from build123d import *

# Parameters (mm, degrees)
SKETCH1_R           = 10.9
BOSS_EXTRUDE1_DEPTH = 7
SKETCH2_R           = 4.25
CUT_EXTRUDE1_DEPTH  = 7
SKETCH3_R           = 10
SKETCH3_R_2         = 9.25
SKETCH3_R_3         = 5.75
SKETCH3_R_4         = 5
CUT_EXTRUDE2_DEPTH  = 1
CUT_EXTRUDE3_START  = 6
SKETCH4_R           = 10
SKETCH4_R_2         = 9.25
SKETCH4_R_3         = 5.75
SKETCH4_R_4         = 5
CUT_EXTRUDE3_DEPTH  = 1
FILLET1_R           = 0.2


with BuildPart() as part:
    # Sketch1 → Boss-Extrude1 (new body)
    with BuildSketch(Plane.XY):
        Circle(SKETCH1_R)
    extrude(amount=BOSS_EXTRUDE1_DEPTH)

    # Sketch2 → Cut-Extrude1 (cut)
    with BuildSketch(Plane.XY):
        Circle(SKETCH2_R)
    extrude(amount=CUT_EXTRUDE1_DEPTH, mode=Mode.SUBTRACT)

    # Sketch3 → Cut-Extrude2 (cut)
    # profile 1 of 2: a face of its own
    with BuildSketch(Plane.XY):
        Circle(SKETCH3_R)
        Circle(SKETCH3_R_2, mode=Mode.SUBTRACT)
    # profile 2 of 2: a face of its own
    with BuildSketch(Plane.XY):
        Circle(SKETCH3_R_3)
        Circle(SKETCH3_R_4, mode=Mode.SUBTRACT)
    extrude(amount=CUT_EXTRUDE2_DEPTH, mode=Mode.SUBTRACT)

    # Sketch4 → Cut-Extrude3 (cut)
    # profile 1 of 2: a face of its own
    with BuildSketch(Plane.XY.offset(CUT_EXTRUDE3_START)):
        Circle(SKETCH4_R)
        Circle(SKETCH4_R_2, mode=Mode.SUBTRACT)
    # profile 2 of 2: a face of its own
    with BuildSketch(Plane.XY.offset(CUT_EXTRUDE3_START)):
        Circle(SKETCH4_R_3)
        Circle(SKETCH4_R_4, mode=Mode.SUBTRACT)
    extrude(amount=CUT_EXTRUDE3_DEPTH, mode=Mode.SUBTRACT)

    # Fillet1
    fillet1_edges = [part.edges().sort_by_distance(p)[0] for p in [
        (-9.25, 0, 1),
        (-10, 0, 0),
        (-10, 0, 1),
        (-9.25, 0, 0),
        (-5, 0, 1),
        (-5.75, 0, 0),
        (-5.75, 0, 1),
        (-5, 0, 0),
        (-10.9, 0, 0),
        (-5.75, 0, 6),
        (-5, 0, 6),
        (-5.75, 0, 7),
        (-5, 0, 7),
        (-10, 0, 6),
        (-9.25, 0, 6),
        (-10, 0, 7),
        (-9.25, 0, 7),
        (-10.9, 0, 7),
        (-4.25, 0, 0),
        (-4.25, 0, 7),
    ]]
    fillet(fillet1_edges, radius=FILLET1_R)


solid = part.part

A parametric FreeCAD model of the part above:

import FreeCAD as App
import Part
import Sketcher


def edges_at(feature, points):
    """Names of the edges that pass closest to the given points."""
    edges = feature.Shape.Edges
    near = lambda p: min(range(len(edges)), key=lambda i: edges[i].distToShape(Part.Vertex(*p))[0])
    return sorted({f"Edge{near(p) + 1}" for p in points})

doc = App.newDocument("Part")
params = doc.addObject("Spreadsheet::Sheet", "Params")
for row, (alias, value) in enumerate([
    ("sketch1_diameter", "21.8 mm"),
    ("pad1_length", "7 mm"),
    ("sketch2_diameter", "8.5 mm"),
    ("pocket1_length", "7 mm"),
    ("sketch3_diameter", "20 mm"),
    ("sketch3_diameter2", "10 mm"),
    ("sketch3_diameter3", "18.5 mm"),
    ("sketch3_diameter4", "11.5 mm"),
    ("pocket2_length", "1 mm"),
    ("sketch4_diameter", "20 mm"),
    ("sketch4_diameter2", "10 mm"),
    ("sketch4_diameter3", "18.5 mm"),
    ("sketch4_diameter4", "11.5 mm"),
    ("pocket3_length", "1 mm"),
    ("fillet_radius", "0.2 mm"),
], start=1):
    params.set(f"A{row}", alias)
    params.set(f"B{row}", "=" + value)
    params.setAlias(f"B{row}", alias)

body = doc.addObject("PartDesign::Body", "Body")

# Sketch on XY plane
sketch1 = body.newObject("Sketcher::SketchObject", "Sketch")
sketch1.AttachmentSupport = (doc.getObject("XY_Plane"), [""])
sketch1.MapMode = "FlatFace"
sketch1.addGeometry(Part.Circle(App.Vector(0, 0, 0), App.Vector(0, 0, 1), 11), False)
sketch1.addConstraint([
    Sketcher.Constraint("Coincident", 0, 3, -1, 1),
    Sketcher.Constraint("Diameter", 0, 21.8),
])
sketch1.setExpression("Constraints[1]", "Params.sketch1_diameter")
pad1 = body.newObject("PartDesign::Pad", "Pad")
pad1.Profile = sketch1
pad1.setExpression("Length", "Params.pad1_length")

# Sketch on XY plane
sketch2 = body.newObject("Sketcher::SketchObject", "Sketch001")
sketch2.AttachmentSupport = (doc.getObject("XY_Plane"), [""])
sketch2.MapMode = "FlatFace"
sketch2.addGeometry(Part.Circle(App.Vector(0, 0, 0), App.Vector(0, 0, 1), 4.2), False)
sketch2.addConstraint([
    Sketcher.Constraint("Coincident", 0, 3, -1, 1),
    Sketcher.Constraint("Diameter", 0, 8.5),
])
sketch2.setExpression("Constraints[1]", "Params.sketch2_diameter")
pocket1 = body.newObject("PartDesign::Pocket", "Pocket")
pocket1.Profile = sketch2
pocket1.setExpression("Length", "Params.pocket1_length")
pocket1.Reversed = True

# Sketch on XY plane
sketch3 = body.newObject("Sketcher::SketchObject", "Sketch002")
sketch3.AttachmentSupport = (doc.getObject("XY_Plane"), [""])
sketch3.MapMode = "FlatFace"
sketch3.addGeometry([
    Part.Circle(App.Vector(0, 0, 0), App.Vector(0, 0, 1), 10),
    Part.Circle(App.Vector(0, 0, 0), App.Vector(0, 0, 1), 9),
    Part.Circle(App.Vector(0, 0, 0), App.Vector(0, 0, 1), 6),
    Part.Circle(App.Vector(0, 0, 0), App.Vector(0, 0, 1), 5),
], False)
sketch3.addConstraint([
    Sketcher.Constraint("Coincident", 0, 3, -1, 1),
    Sketcher.Constraint("Coincident", 1, 3, -1, 1),
    Sketcher.Constraint("Coincident", 2, 3, -1, 1),
    Sketcher.Constraint("Coincident", 3, 3, -1, 1),
    Sketcher.Constraint("Diameter", 0, 20.0),
    Sketcher.Constraint("Diameter", 3, 10.0),
    Sketcher.Constraint("Diameter", 1, 18.5),
    Sketcher.Constraint("Diameter", 2, 11.5),
])
sketch3.setExpression("Constraints[4]", "Params.sketch3_diameter")
sketch3.setExpression("Constraints[5]", "Params.sketch3_diameter2")
sketch3.setExpression("Constraints[6]", "Params.sketch3_diameter3")
sketch3.setExpression("Constraints[7]", "Params.sketch3_diameter4")
pocket2 = body.newObject("PartDesign::Pocket", "Pocket001")
pocket2.Profile = sketch3
pocket2.setExpression("Length", "Params.pocket2_length")
pocket2.Reversed = True

# Sketch on XY plane
sketch4 = body.newObject("Sketcher::SketchObject", "Sketch003")
sketch4.AttachmentSupport = (doc.getObject("XY_Plane"), [""])
sketch4.MapMode = "FlatFace"
sketch4.AttachmentOffset = App.Placement(App.Vector(0, 0, 6), App.Rotation())
sketch4.addGeometry([
    Part.Circle(App.Vector(0, 0, 0), App.Vector(0, 0, 1), 10),
    Part.Circle(App.Vector(0, 0, 0), App.Vector(0, 0, 1), 9),
    Part.Circle(App.Vector(0, 0, 0), App.Vector(0, 0, 1), 6),
    Part.Circle(App.Vector(0, 0, 0), App.Vector(0, 0, 1), 5),
], False)
sketch4.addConstraint([
    Sketcher.Constraint("Coincident", 0, 3, -1, 1),
    Sketcher.Constraint("Coincident", 1, 3, -1, 1),
    Sketcher.Constraint("Coincident", 2, 3, -1, 1),
    Sketcher.Constraint("Coincident", 3, 3, -1, 1),
    Sketcher.Constraint("Diameter", 0, 20.0),
    Sketcher.Constraint("Diameter", 3, 10.0),
    Sketcher.Constraint("Diameter", 1, 18.5),
    Sketcher.Constraint("Diameter", 2, 11.5),
])
sketch4.setExpression("Constraints[4]", "Params.sketch4_diameter")
sketch4.setExpression("Constraints[5]", "Params.sketch4_diameter2")
sketch4.setExpression("Constraints[6]", "Params.sketch4_diameter3")
sketch4.setExpression("Constraints[7]", "Params.sketch4_diameter4")
pocket3 = body.newObject("PartDesign::Pocket", "Pocket002")
pocket3.Profile = sketch4
pocket3.setExpression("Length", "Params.pocket3_length")
pocket3.Reversed = True
doc.recompute()

fillet = body.newObject("PartDesign::Fillet", "Fillet")
fillet.Base = (pocket3, edges_at(pocket3, [
    (-9.25, 0, 1),
    (-10, 0, 0),
    (-10, 0, 1),
    (-9.25, 0, 0),
    (-5, 0, 1),
    (-5.75, 0, 0),
    (-5.75, 0, 1),
    (-5, 0, 0),
    (-10.9, 0, 0),
    (-5.75, 0, 6),
    (-5, 0, 6),
    (-5.75, 0, 7),
    (-5, 0, 7),
    (-10, 0, 6),
    (-9.25, 0, 6),
    (-10, 0, 7),
    (-9.25, 0, 7),
    (-10.9, 0, 7),
    (-4.25, 0, 0),
    (-4.25, 0, 7),
]))
fillet.setExpression("Radius", "Params.fillet_radius")

doc.recompute()
